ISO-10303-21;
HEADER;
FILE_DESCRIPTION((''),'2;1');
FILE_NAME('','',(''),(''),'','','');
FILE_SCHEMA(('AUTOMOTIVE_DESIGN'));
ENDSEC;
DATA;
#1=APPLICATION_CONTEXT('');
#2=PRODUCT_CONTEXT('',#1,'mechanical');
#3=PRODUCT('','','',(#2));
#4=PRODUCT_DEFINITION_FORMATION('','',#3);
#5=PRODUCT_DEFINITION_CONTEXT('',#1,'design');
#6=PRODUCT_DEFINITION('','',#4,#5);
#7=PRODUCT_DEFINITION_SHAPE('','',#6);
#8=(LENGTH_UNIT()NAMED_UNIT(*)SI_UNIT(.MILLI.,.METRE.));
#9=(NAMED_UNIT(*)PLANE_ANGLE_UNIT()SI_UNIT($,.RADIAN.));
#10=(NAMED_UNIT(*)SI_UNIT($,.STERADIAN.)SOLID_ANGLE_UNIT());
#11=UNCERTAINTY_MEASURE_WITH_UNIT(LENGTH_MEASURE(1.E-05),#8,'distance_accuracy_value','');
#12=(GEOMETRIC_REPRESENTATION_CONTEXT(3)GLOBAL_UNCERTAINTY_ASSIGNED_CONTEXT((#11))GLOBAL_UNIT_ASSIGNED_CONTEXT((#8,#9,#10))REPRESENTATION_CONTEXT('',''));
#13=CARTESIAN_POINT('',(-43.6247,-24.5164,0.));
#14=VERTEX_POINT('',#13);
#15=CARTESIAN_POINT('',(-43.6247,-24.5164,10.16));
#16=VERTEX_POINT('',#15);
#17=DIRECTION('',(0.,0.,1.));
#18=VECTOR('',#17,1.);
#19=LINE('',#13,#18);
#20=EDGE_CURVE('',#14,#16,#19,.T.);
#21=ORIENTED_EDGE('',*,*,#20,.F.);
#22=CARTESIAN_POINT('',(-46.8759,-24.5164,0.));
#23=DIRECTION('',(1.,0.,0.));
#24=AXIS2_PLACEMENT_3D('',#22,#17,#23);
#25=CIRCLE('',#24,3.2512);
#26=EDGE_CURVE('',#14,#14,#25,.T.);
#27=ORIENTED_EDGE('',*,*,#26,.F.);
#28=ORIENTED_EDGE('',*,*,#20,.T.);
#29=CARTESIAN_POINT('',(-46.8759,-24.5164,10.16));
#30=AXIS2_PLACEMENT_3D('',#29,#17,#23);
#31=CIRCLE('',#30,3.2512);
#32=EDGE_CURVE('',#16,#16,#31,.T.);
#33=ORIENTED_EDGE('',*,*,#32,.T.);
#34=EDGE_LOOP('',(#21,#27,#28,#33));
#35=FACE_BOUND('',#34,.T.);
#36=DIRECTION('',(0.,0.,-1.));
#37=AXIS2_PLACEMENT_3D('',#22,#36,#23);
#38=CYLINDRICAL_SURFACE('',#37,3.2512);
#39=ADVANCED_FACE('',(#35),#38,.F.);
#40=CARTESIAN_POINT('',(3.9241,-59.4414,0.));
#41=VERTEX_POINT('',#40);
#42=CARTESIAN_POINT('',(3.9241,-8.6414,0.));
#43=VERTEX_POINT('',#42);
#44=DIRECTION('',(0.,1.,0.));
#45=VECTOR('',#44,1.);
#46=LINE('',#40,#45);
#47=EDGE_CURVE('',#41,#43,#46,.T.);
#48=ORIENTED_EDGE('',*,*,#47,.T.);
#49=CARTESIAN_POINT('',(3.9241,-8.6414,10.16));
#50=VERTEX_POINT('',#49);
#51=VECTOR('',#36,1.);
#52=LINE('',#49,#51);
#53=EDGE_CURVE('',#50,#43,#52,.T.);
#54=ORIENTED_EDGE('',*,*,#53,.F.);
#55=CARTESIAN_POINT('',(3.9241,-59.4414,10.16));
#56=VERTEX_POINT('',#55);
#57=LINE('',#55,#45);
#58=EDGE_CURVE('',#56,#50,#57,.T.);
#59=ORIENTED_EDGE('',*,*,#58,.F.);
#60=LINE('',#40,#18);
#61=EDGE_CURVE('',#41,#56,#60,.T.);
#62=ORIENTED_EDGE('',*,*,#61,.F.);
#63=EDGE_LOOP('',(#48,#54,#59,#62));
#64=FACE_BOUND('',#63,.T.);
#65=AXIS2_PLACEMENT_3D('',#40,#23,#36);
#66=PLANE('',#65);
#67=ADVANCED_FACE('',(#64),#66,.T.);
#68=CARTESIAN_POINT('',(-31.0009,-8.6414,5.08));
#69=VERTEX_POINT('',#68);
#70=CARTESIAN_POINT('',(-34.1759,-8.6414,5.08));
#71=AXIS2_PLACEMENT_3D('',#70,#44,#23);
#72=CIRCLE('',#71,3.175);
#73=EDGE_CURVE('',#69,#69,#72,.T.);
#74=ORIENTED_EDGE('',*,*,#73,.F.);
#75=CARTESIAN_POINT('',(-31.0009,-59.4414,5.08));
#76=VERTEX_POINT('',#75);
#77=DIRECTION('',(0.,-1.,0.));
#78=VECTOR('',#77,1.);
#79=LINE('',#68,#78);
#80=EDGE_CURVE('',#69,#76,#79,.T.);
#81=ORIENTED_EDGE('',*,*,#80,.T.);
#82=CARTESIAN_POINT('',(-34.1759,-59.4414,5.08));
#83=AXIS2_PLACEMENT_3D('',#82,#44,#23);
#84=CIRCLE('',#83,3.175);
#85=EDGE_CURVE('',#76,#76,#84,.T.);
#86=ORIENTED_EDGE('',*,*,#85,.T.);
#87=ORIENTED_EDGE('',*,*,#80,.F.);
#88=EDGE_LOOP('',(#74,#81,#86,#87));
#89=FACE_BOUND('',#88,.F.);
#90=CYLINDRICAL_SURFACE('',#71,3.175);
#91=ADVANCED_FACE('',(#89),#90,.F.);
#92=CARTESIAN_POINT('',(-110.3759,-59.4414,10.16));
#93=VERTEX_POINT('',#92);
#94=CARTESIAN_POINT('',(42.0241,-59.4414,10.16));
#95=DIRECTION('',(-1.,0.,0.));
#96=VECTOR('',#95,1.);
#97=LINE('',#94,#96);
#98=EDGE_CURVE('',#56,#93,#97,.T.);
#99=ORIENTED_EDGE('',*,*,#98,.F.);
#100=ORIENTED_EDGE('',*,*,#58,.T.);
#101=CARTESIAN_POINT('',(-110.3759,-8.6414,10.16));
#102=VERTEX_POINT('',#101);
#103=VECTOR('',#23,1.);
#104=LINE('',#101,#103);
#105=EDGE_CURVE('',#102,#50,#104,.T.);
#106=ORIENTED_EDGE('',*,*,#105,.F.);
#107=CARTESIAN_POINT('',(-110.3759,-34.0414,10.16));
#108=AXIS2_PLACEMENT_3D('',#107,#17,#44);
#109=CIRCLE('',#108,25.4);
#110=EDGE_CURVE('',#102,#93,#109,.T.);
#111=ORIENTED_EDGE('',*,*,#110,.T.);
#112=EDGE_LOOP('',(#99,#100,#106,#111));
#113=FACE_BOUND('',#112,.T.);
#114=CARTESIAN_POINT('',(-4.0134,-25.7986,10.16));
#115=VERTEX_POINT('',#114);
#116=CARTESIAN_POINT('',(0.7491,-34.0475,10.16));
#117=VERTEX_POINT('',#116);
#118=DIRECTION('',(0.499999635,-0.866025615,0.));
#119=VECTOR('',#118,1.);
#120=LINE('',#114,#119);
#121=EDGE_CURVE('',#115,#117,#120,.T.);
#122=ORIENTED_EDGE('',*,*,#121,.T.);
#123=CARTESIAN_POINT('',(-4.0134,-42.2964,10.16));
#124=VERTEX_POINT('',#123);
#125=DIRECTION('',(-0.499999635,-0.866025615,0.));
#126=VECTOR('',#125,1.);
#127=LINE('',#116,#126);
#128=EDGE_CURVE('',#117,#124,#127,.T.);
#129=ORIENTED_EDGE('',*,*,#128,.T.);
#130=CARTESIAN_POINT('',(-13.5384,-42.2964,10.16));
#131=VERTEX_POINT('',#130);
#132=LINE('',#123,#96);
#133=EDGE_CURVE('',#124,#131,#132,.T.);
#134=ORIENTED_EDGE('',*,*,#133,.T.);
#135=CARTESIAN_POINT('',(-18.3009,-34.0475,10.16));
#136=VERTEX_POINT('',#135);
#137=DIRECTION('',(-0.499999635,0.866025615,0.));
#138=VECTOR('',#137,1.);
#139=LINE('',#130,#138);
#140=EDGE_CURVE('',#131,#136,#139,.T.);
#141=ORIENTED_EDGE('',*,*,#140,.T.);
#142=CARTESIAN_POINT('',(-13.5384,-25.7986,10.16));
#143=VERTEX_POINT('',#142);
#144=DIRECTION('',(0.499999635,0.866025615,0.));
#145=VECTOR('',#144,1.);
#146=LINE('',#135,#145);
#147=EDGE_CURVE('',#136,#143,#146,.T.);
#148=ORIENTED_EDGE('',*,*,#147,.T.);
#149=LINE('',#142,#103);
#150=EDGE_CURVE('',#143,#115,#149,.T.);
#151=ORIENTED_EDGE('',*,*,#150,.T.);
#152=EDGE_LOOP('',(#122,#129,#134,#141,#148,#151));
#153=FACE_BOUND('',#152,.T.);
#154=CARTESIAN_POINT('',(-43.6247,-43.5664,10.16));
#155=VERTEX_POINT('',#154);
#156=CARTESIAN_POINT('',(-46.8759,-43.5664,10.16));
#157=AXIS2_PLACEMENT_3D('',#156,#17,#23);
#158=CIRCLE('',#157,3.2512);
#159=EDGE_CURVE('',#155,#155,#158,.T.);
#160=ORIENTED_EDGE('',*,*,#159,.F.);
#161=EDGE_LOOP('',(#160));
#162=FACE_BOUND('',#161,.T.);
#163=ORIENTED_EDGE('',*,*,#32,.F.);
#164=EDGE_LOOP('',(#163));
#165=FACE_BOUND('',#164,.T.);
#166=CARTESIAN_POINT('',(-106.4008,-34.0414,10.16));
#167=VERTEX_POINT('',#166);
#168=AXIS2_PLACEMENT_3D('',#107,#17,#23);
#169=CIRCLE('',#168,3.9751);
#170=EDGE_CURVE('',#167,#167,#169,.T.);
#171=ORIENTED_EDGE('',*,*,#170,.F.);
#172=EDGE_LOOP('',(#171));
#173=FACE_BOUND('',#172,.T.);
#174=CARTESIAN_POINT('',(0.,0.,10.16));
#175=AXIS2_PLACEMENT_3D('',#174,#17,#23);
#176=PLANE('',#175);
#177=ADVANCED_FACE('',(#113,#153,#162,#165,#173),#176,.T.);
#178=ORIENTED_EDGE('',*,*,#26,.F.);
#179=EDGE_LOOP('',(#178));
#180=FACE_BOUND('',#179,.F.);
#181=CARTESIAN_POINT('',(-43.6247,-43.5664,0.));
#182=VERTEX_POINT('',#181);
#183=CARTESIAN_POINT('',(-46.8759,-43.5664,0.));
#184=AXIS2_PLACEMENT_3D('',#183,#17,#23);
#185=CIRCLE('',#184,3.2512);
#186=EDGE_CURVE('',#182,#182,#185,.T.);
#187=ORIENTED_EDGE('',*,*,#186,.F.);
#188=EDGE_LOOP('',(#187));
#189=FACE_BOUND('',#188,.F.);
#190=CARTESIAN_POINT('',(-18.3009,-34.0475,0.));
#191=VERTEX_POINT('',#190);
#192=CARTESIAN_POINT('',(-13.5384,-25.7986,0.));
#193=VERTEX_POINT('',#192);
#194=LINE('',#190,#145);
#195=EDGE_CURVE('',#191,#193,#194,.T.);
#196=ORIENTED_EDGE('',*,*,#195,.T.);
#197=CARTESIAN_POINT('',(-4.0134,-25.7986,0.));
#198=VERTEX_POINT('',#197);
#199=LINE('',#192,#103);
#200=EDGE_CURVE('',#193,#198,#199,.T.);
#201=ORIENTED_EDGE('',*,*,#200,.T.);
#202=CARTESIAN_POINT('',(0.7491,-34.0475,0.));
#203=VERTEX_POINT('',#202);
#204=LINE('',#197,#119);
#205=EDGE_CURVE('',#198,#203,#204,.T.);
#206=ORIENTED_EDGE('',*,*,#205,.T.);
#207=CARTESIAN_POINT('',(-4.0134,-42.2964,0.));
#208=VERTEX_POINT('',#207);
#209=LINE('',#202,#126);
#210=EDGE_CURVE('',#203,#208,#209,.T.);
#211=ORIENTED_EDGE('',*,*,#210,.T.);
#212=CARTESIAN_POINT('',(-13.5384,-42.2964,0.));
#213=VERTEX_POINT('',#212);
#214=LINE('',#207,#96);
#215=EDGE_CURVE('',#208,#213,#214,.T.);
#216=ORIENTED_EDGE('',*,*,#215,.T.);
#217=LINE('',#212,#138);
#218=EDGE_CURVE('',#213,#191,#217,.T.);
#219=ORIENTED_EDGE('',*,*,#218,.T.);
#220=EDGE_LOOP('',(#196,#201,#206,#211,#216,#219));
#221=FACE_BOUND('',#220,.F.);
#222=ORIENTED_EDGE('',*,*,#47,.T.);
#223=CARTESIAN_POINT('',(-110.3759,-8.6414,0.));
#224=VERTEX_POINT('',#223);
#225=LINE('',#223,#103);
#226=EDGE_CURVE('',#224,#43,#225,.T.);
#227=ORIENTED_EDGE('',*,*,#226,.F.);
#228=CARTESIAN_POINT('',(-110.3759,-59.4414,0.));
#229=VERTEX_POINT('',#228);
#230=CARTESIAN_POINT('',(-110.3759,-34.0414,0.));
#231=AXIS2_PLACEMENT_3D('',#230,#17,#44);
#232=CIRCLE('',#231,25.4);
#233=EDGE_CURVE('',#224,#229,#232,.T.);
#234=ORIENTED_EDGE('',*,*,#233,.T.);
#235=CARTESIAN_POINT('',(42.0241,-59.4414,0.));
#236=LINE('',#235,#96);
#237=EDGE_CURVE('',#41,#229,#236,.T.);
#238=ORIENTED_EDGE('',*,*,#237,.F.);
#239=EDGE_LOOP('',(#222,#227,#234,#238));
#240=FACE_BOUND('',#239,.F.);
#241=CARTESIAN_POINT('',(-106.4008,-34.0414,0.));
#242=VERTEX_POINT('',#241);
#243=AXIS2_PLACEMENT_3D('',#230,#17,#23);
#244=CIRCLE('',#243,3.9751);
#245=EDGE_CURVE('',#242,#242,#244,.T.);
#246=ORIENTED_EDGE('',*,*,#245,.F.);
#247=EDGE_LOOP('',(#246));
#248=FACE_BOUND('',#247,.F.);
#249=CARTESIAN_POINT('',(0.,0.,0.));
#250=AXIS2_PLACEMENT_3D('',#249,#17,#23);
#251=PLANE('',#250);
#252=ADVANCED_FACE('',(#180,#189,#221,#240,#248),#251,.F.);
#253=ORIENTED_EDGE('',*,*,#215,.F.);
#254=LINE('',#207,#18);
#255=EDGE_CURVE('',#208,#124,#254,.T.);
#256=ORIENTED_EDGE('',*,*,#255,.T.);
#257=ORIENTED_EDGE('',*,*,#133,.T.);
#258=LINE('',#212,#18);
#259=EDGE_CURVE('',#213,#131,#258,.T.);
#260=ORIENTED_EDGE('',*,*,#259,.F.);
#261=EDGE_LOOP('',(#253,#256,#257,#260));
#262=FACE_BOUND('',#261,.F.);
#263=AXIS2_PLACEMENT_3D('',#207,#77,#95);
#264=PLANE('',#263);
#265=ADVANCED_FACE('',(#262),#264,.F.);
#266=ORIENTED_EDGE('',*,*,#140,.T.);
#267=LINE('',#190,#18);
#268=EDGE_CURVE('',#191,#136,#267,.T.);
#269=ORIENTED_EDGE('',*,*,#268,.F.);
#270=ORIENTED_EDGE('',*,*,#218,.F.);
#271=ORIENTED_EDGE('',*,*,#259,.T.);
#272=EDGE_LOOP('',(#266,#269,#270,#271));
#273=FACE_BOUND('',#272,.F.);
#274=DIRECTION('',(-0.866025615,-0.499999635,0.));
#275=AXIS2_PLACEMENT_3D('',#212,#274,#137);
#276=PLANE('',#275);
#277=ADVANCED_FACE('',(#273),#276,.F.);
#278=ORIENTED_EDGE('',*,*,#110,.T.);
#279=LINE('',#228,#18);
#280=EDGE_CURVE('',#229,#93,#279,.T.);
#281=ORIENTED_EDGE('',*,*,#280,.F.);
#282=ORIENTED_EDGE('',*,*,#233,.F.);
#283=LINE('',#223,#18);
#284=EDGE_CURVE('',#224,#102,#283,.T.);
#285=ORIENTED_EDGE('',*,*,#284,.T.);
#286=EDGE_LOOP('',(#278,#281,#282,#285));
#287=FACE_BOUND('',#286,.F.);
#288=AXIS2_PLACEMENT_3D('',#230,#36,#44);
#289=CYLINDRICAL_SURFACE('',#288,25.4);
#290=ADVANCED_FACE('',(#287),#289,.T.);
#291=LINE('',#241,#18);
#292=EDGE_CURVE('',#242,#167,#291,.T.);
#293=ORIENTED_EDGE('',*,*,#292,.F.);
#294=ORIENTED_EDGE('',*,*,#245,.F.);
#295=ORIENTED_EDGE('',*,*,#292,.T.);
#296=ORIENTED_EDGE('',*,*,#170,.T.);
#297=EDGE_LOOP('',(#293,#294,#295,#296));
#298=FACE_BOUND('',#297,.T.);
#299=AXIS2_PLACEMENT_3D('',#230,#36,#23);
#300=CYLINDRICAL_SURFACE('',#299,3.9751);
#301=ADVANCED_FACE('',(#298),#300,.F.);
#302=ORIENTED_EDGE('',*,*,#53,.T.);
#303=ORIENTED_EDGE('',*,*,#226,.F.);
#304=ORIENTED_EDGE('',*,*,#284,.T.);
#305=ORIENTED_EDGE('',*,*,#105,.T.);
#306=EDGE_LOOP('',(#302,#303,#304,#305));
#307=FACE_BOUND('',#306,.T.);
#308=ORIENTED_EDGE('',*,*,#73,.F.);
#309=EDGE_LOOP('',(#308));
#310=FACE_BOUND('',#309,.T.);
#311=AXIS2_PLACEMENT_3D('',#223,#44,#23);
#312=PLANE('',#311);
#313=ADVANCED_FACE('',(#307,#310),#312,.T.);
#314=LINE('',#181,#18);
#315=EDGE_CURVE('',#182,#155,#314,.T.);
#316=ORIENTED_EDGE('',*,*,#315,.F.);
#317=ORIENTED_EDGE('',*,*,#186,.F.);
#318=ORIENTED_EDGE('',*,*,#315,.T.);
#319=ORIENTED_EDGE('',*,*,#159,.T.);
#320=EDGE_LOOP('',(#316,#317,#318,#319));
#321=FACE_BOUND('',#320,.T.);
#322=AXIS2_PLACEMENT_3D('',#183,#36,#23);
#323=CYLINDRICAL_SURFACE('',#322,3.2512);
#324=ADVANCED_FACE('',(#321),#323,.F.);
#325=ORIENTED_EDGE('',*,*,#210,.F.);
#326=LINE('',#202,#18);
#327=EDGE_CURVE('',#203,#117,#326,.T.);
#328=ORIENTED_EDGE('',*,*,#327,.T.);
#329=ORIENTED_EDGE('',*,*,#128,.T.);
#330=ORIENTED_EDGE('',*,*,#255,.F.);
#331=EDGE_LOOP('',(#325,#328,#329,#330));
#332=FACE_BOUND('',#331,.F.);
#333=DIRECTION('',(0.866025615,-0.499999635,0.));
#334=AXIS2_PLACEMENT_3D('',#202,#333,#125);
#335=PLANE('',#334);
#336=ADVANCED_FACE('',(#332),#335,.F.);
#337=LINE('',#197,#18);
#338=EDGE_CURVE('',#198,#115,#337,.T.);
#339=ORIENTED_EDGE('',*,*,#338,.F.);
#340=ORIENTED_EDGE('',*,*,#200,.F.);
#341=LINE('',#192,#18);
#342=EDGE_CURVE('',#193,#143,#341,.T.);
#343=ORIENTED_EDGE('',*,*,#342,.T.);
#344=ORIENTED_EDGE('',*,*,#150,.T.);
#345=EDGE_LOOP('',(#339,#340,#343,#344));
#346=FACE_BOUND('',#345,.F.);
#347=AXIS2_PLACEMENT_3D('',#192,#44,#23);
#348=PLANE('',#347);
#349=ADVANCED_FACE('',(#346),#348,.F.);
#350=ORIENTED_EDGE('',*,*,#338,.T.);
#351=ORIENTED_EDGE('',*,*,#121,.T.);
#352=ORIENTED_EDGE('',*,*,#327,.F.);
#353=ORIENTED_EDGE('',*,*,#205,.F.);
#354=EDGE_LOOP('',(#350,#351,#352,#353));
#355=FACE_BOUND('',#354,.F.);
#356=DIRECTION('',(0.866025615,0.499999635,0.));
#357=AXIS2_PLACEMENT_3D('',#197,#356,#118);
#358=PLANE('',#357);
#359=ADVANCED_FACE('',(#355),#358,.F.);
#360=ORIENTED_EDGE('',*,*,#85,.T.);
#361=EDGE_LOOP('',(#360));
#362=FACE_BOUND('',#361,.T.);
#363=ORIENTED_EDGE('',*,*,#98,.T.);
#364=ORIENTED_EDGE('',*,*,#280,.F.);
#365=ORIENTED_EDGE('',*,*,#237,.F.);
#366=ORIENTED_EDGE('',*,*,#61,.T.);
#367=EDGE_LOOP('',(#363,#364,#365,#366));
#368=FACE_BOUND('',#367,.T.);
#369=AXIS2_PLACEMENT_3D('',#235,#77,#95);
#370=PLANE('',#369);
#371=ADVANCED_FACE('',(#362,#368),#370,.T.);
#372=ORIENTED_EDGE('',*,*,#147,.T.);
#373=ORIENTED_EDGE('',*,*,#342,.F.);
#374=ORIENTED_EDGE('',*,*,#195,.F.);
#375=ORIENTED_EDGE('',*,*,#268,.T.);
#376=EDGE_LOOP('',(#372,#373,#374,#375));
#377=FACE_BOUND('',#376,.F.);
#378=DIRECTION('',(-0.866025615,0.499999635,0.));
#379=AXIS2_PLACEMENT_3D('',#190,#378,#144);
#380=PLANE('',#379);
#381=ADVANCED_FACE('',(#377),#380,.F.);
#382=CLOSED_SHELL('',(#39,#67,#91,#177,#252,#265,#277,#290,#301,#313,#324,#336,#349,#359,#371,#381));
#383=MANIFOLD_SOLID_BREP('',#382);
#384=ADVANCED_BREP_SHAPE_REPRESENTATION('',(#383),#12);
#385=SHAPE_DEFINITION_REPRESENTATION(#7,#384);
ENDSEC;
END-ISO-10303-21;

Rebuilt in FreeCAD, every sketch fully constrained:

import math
import FreeCAD as App
import Part
import Sketcher

V = App.Vector
Q = App.Units.Quantity


def add_polygon(sketch, points):
    """Adds a closed chain of lines whose ends are joined by coincident constraints."""
    first, n = sketch.GeometryCount, len(points)
    for a, b in zip(points, points[1:] + points[:1]):
        sketch.addGeometry(Part.LineSegment(App.Vector(*a, 0), App.Vector(*b, 0)), False)
    for i in range(n):
        sketch.addConstraint(Sketcher.Constraint("Coincident", first + i, 2, first + (i + 1) % n, 1))

doc = App.newDocument("Part")
body = doc.addObject("PartDesign::Body", "Body")

sketch1 = doc.addObject("Sketcher::SketchObject", "Sketch")
body.addObject(sketch1)
sketch1.AttachmentSupport = (doc.XY_Plane, [""])
sketch1.MapMode = "FlatFace"
sketch1.addGeometry(Part.LineSegment(V(42, -8.6, 0), V(-110.4, -8.6, 0)), False)
sketch1.addGeometry(Part.ArcOfCircle(Part.Circle(V(-110.4, -34, 0), V(0, 0, 1), 25.4), math.radians(90), math.radians(270)), False)
sketch1.addGeometry(Part.LineSegment(V(-110.4, -59.4, 0), V(42, -59.4, 0)), False)
sketch1.addGeometry(Part.LineSegment(V(42, -59.4, 0), V(42, -8.6, 0)), False)
sketch1.addGeometry(Part.Circle(V(-110.4, -34, 0), V(0, 0, 1), 4), False)
sketch1.addGeometry(Part.Circle(V(-46.9, -43.6, 0), V(0, 0, 1), 3.3), False)
add_polygon(sketch1, [(-18.3, -34), (-13.5, -25.8), (-4, -25.8), (0.7, -34), (-4, -42.3), (-13.5, -42.3)])
sketch1.addGeometry(Part.Circle(V(-46.9, -24.5, 0), V(0, 0, 1), 3.3), False)
sketch1.addConstraint(Sketcher.Constraint("Tangent", 0, 2, 1, 1))
sketch1.addConstraint(Sketcher.Constraint("Tangent", 1, 2, 2, 1))
sketch1.addConstraint(Sketcher.Constraint("Coincident", 2, 2, 3, 1))
sketch1.addConstraint(Sketcher.Constraint("Coincident", 3, 2, 0, 1))
sketch1.addConstraint(Sketcher.Constraint("Horizontal", 0))
sketch1.addConstraint(Sketcher.Constraint("Horizontal", 2))
sketch1.addConstraint(Sketcher.Constraint("Vertical", 3))
sketch1.addConstraint(Sketcher.Constraint("Horizontal", 7))
sketch1.addConstraint(Sketcher.Constraint("Horizontal", 10))
sketch1.addConstraint(Sketcher.Constraint("Coincident", 4, 3, 1, 3))
sketch1.addConstraint(Sketcher.Constraint("Equal", 5, 12))
sketch1.addConstraint(Sketcher.Constraint("Parallel", 6, 9))
sketch1.addConstraint(Sketcher.Constraint("Parallel", 8, 11))
sketch1.addConstraint(Sketcher.Constraint("Horizontal", 8, 2, 11, 2))
sketch1.addConstraint(Sketcher.Constraint("Vertical", 5, 3, 12, 3))
sketch1.addConstraint(Sketcher.Constraint("Vertical", 7, 2, 9, 2))
sketch1.addConstraint(Sketcher.Constraint("Vertical", 6, 2, 10, 2))
sketch1.addConstraint(Sketcher.Constraint("Radius", 1, Q("1 in")))
sketch1.addConstraint(Sketcher.Constraint("DistanceX", 0, 2, 0, 1, Q("6 in")))
sketch1.addConstraint(Sketcher.Constraint("Diameter", 4, Q("0.313 in")))
sketch1.addConstraint(Sketcher.Constraint("Diameter", 5, Q("0.256 in")))
sketch1.addConstraint(Sketcher.Constraint("Angle", 9, Q("-120 deg")))
sketch1.addConstraint(Sketcher.Constraint("DistanceX", 1, 3, 5, 3, Q("2.5 in")))
sketch1.addConstraint(Sketcher.Constraint("DistanceX", 7, 1, 7, 2, Q("0.375 in")))
sketch1.addConstraint(Sketcher.Constraint("DistanceY", 5, 3, 12, 3, Q("0.75 in")))
sketch1.addConstraint(Sketcher.Constraint("DistanceX", 11, 2, 8, 2, Q("0.75 in")))
sketch1.addConstraint(Sketcher.Constraint("DistanceY", 5, 3, 1, 3, Q("0.375 in")))
sketch1.addConstraint(Sketcher.Constraint("DistanceY", 9, 2, 12, 3, Q("0.7 in")))
sketch1.addConstraint(Sketcher.Constraint("DistanceX", 6, 2, -1, 1, Q("0.533 in")))
sketch1.addConstraint(Sketcher.Constraint("DistanceX", 12, 3, 6, 2, Q("1.3125 in")))
sketch1.addConstraint(Sketcher.Constraint("DistanceY", 6, 2, -1, 1, Q("1.0157 in")))
pad1 = doc.addObject("PartDesign::Pad", "Pad")
body.addObject(pad1)
pad1.Profile = sketch1
pad1.Length = Q("0.4 in")

sketch2 = doc.addObject("Sketcher::SketchObject", "Sketch001")
body.addObject(sketch2)
sketch2.AttachmentSupport = (doc.XZ_Plane, [""])
sketch2.MapMode = "FlatFace"
sketch2.AttachmentOffset = App.Placement(V(0, 0, 8.6414), App.Rotation())
sketch2.addGeometry(Part.Circle(V(-34.2, 5.1, 0), V(0, 0, 1), 3.2), False)
sketch2.addConstraint(Sketcher.Constraint("Diameter", 0, Q("0.25 in")))
sketch2.addConstraint(Sketcher.Constraint("DistanceY", -1, 1, 0, 3, Q("0.2 in")))
sketch2.addConstraint(Sketcher.Constraint("DistanceX", 0, 3, -1, 1, Q("1.3455 in")))
pocket1 = doc.addObject("PartDesign::Pocket", "Pocket")
body.addObject(pocket1)
pocket1.Profile = sketch2
pocket1.Length = Q("2 in")
pocket1.Reversed = True

sketch3 = doc.addObject("Sketcher::SketchObject", "Sketch002")
body.addObject(sketch3)
sketch3.AttachmentSupport = (doc.YZ_Plane, [""])
sketch3.MapMode = "FlatFace"
sketch3.AttachmentOffset = App.Placement(V(0, 0, 1.6544921 * 25.4), App.Rotation())
add_polygon(sketch3, [(-9, 10), (-59, 10), (-59, 0), (-9, 0)])
sketch3.addConstraint(Sketcher.Constraint("Horizontal", 0))
sketch3.addConstraint(Sketcher.Constraint("Vertical", 1))
sketch3.addConstraint(Sketcher.Constraint("Horizontal", 2))
sketch3.addConstraint(Sketcher.Constraint("Vertical", 3))
sketch3.addConstraint(Sketcher.Constraint("PointOnObject", 1, 2, -1))
sketch3.addConstraint(Sketcher.Constraint("DistanceX", 0, 2, 0, 1, Q("2 in")))
sketch3.addConstraint(Sketcher.Constraint("DistanceY", 1, 2, 1, 1, Q("0.4 in")))
sketch3.addConstraint(Sketcher.Constraint("DistanceX", 0, 2, -1, 1, Q("59.4414 mm")))
pocket2 = doc.addObject("PartDesign::Pocket", "Pocket001")
body.addObject(pocket2)
pocket2.Profile = sketch3
pocket2.Length = Q("1.5 in")

doc.recompute()
